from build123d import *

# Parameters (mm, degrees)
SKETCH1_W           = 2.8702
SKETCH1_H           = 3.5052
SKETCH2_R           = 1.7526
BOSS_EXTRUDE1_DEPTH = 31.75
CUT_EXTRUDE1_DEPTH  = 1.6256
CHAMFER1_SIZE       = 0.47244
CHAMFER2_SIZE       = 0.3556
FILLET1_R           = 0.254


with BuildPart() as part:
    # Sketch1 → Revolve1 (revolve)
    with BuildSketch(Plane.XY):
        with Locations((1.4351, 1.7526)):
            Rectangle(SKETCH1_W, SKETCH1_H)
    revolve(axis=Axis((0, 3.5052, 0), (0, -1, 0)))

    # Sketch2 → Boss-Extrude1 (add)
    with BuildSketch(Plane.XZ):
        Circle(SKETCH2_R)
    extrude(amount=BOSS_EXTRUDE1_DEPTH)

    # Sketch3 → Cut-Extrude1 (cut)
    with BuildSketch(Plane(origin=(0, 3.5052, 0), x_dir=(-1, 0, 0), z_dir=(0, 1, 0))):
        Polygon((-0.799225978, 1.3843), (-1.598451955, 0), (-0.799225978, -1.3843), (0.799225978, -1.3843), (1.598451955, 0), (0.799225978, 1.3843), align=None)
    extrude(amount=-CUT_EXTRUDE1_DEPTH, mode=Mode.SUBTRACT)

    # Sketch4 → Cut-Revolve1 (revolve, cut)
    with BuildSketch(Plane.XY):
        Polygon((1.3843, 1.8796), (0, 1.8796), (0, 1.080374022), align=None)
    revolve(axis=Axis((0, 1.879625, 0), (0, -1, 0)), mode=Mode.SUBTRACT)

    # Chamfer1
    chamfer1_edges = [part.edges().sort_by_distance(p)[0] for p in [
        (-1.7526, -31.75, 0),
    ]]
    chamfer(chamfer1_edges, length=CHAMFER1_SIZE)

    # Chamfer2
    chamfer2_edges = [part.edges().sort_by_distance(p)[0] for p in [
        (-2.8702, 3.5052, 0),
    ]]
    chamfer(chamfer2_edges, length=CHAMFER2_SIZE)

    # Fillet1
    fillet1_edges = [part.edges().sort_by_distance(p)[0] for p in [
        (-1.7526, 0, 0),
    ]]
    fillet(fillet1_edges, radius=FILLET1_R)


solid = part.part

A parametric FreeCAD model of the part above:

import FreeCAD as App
import Part
import Sketcher
from FreeCAD import Vector
Q = App.Units.Quantity


def edges_at(feature, points):
    """Names of the edges that pass closest to the given points."""
    edges = feature.Shape.Edges
    near = lambda p: min(range(len(edges)), key=lambda i: edges[i].distToShape(Part.Vertex(*p))[0])
    return sorted({f"Edge{near(p) + 1}" for p in points})


def add_polygon(sketch, points):
    """Adds a closed chain of lines whose ends are joined by coincident constraints."""
    first, n = sketch.GeometryCount, len(points)
    for a, b in zip(points, points[1:] + points[:1]):
        sketch.addGeometry(Part.LineSegment(App.Vector(*a, 0), App.Vector(*b, 0)), False)
    for i in range(n):
        sketch.addConstraint(Sketcher.Constraint("Coincident", first + i, 2, first + (i + 1) % n, 1))

doc = App.newDocument("Part")
body = doc.addObject("PartDesign::Body", "Body")

# Sketch on XY plane
sketch1 = body.newObject("Sketcher::SketchObject", "Sketch")
sketch1.AttachmentSupport = (doc.getObject("XY_Plane"), [""])
sketch1.MapMode = "FlatFace"
add_polygon(sketch1, [(0, 3.5), (0, 0), (2.9, 0), (2.9, 3.5)])  # lines 0-3
sketch1.addConstraint(Sketcher.Constraint("Vertical", 0))
sketch1.addConstraint(Sketcher.Constraint("Horizontal", 1))
sketch1.addConstraint(Sketcher.Constraint("Vertical", 2))
sketch1.addConstraint(Sketcher.Constraint("Horizontal", 3))
sketch1.addConstraint(Sketcher.Constraint("Coincident", 0, 2, -1, 1))
sketch1.addConstraint(Sketcher.Constraint("DistanceX", 1, 1, 1, 2, Q("0.113 in")))
sketch1.addConstraint(Sketcher.Constraint("DistanceY", 0, 2, 0, 1, Q("0.138 in")))
revolution = body.newObject("PartDesign::Revolution", "Revolution")
revolution.Profile = sketch1
revolution.ReferenceAxis = (sketch1, ["V_Axis"])
revolution.Angle = 360

# Sketch on XZ plane
sketch2 = body.newObject("Sketcher::SketchObject", "Sketch001")
sketch2.AttachmentSupport = (doc.getObject("XZ_Plane"), [""])
sketch2.MapMode = "FlatFace"
sketch2.addGeometry(Part.Circle(Vector(0, 0, 0), Vector(0, 0, 1), 1.8), False)
sketch2.addConstraint(Sketcher.Constraint("Coincident", 0, 3, -1, 1))
sketch2.addConstraint(Sketcher.Constraint("Diameter", 0, Q("0.138 in")))
pad1 = body.newObject("PartDesign::Pad", "Pad")
pad1.Profile = sketch2
pad1.Length = Q("1.25 in")

# Sketch on XZ plane
sketch3 = body.newObject("Sketcher::SketchObject", "Sketch002")
sketch3.AttachmentSupport = (doc.getObject("XZ_Plane"), [""])
sketch3.MapMode = "FlatFace"
sketch3.AttachmentOffset = App.Placement(Vector(0, 0, -0.138 * 25.4), App.Rotation())
add_polygon(sketch3, [(0.8, 1.4), (1.6, 0), (0.8, -1.4), (-0.8, -1.4), (-1.6, 0), (-0.8, 1.4)])  # lines 0-5
sketch3.addConstraint(Sketcher.Constraint("Horizontal", 2))
sketch3.addConstraint(Sketcher.Constraint("Horizontal", 5))
sketch3.addConstraint(Sketcher.Constraint("Symmetric", 0, 2, 3, 2, -1, 1))
sketch3.addConstraint(Sketcher.Constraint("Symmetric", 1, 2, 4, 2, -1, 1))
sketch3.addConstraint(Sketcher.Constraint("PointOnObject", 0, 2, -1))
sketch3.addConstraint(Sketcher.Constraint("Parallel", 0, 3))
sketch3.addConstraint(Sketcher.Constraint("Vertical", 2, 2, 4, 2))
sketch3.addConstraint(Sketcher.Constraint("Angle", 0, Q("-60 deg")))
sketch3.addConstraint(Sketcher.Constraint("DistanceY", 2, 2, 4, 2, Q("0.109 in")))
sketch3.addConstraint(Sketcher.Constraint("DistanceX", 2, 2, 2, 1, 1.598452))
pocket1 = body.newObject("PartDesign::Pocket", "Pocket")
pocket1.Profile = sketch3
pocket1.Length = Q("0.064 in")
pocket1.Reversed = True

# Sketch on XY plane
sketch4 = body.newObject("Sketcher::SketchObject", "Sketch003")
sketch4.AttachmentSupport = (doc.getObject("XY_Plane"), [""])
sketch4.MapMode = "FlatFace"
add_polygon(sketch4, [(1.4, 1.9), (0, 1.9), (0, 1.1)])  # lines 0-2
sketch4.addConstraint(Sketcher.Constraint("Horizontal", 0))
sketch4.addConstraint(Sketcher.Constraint("Vertical", 1))
sketch4.addConstraint(Sketcher.Constraint("PointOnObject", 0, 2, -2))
sketch4.addConstraint(Sketcher.Constraint("Angle", 2, Q("30 deg")))
sketch4.addConstraint(Sketcher.Constraint("DistanceX", 0, 2, 0, 1, Q("0.0545 in")))
sketch4.addConstraint(Sketcher.Constraint("DistanceY", -1, 1, 0, 2, Q("0.074 in")))
groove = body.newObject("PartDesign::Groove", "Groove")
groove.Profile = sketch4
groove.ReferenceAxis = (sketch4, ["V_Axis"])
groove.Angle = 360
doc.recompute()

chamfer = body.newObject("PartDesign::Chamfer", "Chamfer")
chamfer.Base = (groove, edges_at(groove, [(-1.753, -31.75, 0)]))
chamfer.Size = Q("0.0186 in")
doc.recompute()

chamfer2 = body.newObject("PartDesign::Chamfer", "Chamfer001")
chamfer2.Base = (chamfer, edges_at(chamfer, [(-2.87, 3.505, 0)]))
chamfer2.Size = Q("0.014 in")
doc.recompute()

fillet = body.newObject("PartDesign::Fillet", "Fillet")
fillet.Base = (chamfer2, edges_at(chamfer2, [(-1.753, 0, 0)]))
fillet.Radius = Q("0.01 in")

doc.recompute()
